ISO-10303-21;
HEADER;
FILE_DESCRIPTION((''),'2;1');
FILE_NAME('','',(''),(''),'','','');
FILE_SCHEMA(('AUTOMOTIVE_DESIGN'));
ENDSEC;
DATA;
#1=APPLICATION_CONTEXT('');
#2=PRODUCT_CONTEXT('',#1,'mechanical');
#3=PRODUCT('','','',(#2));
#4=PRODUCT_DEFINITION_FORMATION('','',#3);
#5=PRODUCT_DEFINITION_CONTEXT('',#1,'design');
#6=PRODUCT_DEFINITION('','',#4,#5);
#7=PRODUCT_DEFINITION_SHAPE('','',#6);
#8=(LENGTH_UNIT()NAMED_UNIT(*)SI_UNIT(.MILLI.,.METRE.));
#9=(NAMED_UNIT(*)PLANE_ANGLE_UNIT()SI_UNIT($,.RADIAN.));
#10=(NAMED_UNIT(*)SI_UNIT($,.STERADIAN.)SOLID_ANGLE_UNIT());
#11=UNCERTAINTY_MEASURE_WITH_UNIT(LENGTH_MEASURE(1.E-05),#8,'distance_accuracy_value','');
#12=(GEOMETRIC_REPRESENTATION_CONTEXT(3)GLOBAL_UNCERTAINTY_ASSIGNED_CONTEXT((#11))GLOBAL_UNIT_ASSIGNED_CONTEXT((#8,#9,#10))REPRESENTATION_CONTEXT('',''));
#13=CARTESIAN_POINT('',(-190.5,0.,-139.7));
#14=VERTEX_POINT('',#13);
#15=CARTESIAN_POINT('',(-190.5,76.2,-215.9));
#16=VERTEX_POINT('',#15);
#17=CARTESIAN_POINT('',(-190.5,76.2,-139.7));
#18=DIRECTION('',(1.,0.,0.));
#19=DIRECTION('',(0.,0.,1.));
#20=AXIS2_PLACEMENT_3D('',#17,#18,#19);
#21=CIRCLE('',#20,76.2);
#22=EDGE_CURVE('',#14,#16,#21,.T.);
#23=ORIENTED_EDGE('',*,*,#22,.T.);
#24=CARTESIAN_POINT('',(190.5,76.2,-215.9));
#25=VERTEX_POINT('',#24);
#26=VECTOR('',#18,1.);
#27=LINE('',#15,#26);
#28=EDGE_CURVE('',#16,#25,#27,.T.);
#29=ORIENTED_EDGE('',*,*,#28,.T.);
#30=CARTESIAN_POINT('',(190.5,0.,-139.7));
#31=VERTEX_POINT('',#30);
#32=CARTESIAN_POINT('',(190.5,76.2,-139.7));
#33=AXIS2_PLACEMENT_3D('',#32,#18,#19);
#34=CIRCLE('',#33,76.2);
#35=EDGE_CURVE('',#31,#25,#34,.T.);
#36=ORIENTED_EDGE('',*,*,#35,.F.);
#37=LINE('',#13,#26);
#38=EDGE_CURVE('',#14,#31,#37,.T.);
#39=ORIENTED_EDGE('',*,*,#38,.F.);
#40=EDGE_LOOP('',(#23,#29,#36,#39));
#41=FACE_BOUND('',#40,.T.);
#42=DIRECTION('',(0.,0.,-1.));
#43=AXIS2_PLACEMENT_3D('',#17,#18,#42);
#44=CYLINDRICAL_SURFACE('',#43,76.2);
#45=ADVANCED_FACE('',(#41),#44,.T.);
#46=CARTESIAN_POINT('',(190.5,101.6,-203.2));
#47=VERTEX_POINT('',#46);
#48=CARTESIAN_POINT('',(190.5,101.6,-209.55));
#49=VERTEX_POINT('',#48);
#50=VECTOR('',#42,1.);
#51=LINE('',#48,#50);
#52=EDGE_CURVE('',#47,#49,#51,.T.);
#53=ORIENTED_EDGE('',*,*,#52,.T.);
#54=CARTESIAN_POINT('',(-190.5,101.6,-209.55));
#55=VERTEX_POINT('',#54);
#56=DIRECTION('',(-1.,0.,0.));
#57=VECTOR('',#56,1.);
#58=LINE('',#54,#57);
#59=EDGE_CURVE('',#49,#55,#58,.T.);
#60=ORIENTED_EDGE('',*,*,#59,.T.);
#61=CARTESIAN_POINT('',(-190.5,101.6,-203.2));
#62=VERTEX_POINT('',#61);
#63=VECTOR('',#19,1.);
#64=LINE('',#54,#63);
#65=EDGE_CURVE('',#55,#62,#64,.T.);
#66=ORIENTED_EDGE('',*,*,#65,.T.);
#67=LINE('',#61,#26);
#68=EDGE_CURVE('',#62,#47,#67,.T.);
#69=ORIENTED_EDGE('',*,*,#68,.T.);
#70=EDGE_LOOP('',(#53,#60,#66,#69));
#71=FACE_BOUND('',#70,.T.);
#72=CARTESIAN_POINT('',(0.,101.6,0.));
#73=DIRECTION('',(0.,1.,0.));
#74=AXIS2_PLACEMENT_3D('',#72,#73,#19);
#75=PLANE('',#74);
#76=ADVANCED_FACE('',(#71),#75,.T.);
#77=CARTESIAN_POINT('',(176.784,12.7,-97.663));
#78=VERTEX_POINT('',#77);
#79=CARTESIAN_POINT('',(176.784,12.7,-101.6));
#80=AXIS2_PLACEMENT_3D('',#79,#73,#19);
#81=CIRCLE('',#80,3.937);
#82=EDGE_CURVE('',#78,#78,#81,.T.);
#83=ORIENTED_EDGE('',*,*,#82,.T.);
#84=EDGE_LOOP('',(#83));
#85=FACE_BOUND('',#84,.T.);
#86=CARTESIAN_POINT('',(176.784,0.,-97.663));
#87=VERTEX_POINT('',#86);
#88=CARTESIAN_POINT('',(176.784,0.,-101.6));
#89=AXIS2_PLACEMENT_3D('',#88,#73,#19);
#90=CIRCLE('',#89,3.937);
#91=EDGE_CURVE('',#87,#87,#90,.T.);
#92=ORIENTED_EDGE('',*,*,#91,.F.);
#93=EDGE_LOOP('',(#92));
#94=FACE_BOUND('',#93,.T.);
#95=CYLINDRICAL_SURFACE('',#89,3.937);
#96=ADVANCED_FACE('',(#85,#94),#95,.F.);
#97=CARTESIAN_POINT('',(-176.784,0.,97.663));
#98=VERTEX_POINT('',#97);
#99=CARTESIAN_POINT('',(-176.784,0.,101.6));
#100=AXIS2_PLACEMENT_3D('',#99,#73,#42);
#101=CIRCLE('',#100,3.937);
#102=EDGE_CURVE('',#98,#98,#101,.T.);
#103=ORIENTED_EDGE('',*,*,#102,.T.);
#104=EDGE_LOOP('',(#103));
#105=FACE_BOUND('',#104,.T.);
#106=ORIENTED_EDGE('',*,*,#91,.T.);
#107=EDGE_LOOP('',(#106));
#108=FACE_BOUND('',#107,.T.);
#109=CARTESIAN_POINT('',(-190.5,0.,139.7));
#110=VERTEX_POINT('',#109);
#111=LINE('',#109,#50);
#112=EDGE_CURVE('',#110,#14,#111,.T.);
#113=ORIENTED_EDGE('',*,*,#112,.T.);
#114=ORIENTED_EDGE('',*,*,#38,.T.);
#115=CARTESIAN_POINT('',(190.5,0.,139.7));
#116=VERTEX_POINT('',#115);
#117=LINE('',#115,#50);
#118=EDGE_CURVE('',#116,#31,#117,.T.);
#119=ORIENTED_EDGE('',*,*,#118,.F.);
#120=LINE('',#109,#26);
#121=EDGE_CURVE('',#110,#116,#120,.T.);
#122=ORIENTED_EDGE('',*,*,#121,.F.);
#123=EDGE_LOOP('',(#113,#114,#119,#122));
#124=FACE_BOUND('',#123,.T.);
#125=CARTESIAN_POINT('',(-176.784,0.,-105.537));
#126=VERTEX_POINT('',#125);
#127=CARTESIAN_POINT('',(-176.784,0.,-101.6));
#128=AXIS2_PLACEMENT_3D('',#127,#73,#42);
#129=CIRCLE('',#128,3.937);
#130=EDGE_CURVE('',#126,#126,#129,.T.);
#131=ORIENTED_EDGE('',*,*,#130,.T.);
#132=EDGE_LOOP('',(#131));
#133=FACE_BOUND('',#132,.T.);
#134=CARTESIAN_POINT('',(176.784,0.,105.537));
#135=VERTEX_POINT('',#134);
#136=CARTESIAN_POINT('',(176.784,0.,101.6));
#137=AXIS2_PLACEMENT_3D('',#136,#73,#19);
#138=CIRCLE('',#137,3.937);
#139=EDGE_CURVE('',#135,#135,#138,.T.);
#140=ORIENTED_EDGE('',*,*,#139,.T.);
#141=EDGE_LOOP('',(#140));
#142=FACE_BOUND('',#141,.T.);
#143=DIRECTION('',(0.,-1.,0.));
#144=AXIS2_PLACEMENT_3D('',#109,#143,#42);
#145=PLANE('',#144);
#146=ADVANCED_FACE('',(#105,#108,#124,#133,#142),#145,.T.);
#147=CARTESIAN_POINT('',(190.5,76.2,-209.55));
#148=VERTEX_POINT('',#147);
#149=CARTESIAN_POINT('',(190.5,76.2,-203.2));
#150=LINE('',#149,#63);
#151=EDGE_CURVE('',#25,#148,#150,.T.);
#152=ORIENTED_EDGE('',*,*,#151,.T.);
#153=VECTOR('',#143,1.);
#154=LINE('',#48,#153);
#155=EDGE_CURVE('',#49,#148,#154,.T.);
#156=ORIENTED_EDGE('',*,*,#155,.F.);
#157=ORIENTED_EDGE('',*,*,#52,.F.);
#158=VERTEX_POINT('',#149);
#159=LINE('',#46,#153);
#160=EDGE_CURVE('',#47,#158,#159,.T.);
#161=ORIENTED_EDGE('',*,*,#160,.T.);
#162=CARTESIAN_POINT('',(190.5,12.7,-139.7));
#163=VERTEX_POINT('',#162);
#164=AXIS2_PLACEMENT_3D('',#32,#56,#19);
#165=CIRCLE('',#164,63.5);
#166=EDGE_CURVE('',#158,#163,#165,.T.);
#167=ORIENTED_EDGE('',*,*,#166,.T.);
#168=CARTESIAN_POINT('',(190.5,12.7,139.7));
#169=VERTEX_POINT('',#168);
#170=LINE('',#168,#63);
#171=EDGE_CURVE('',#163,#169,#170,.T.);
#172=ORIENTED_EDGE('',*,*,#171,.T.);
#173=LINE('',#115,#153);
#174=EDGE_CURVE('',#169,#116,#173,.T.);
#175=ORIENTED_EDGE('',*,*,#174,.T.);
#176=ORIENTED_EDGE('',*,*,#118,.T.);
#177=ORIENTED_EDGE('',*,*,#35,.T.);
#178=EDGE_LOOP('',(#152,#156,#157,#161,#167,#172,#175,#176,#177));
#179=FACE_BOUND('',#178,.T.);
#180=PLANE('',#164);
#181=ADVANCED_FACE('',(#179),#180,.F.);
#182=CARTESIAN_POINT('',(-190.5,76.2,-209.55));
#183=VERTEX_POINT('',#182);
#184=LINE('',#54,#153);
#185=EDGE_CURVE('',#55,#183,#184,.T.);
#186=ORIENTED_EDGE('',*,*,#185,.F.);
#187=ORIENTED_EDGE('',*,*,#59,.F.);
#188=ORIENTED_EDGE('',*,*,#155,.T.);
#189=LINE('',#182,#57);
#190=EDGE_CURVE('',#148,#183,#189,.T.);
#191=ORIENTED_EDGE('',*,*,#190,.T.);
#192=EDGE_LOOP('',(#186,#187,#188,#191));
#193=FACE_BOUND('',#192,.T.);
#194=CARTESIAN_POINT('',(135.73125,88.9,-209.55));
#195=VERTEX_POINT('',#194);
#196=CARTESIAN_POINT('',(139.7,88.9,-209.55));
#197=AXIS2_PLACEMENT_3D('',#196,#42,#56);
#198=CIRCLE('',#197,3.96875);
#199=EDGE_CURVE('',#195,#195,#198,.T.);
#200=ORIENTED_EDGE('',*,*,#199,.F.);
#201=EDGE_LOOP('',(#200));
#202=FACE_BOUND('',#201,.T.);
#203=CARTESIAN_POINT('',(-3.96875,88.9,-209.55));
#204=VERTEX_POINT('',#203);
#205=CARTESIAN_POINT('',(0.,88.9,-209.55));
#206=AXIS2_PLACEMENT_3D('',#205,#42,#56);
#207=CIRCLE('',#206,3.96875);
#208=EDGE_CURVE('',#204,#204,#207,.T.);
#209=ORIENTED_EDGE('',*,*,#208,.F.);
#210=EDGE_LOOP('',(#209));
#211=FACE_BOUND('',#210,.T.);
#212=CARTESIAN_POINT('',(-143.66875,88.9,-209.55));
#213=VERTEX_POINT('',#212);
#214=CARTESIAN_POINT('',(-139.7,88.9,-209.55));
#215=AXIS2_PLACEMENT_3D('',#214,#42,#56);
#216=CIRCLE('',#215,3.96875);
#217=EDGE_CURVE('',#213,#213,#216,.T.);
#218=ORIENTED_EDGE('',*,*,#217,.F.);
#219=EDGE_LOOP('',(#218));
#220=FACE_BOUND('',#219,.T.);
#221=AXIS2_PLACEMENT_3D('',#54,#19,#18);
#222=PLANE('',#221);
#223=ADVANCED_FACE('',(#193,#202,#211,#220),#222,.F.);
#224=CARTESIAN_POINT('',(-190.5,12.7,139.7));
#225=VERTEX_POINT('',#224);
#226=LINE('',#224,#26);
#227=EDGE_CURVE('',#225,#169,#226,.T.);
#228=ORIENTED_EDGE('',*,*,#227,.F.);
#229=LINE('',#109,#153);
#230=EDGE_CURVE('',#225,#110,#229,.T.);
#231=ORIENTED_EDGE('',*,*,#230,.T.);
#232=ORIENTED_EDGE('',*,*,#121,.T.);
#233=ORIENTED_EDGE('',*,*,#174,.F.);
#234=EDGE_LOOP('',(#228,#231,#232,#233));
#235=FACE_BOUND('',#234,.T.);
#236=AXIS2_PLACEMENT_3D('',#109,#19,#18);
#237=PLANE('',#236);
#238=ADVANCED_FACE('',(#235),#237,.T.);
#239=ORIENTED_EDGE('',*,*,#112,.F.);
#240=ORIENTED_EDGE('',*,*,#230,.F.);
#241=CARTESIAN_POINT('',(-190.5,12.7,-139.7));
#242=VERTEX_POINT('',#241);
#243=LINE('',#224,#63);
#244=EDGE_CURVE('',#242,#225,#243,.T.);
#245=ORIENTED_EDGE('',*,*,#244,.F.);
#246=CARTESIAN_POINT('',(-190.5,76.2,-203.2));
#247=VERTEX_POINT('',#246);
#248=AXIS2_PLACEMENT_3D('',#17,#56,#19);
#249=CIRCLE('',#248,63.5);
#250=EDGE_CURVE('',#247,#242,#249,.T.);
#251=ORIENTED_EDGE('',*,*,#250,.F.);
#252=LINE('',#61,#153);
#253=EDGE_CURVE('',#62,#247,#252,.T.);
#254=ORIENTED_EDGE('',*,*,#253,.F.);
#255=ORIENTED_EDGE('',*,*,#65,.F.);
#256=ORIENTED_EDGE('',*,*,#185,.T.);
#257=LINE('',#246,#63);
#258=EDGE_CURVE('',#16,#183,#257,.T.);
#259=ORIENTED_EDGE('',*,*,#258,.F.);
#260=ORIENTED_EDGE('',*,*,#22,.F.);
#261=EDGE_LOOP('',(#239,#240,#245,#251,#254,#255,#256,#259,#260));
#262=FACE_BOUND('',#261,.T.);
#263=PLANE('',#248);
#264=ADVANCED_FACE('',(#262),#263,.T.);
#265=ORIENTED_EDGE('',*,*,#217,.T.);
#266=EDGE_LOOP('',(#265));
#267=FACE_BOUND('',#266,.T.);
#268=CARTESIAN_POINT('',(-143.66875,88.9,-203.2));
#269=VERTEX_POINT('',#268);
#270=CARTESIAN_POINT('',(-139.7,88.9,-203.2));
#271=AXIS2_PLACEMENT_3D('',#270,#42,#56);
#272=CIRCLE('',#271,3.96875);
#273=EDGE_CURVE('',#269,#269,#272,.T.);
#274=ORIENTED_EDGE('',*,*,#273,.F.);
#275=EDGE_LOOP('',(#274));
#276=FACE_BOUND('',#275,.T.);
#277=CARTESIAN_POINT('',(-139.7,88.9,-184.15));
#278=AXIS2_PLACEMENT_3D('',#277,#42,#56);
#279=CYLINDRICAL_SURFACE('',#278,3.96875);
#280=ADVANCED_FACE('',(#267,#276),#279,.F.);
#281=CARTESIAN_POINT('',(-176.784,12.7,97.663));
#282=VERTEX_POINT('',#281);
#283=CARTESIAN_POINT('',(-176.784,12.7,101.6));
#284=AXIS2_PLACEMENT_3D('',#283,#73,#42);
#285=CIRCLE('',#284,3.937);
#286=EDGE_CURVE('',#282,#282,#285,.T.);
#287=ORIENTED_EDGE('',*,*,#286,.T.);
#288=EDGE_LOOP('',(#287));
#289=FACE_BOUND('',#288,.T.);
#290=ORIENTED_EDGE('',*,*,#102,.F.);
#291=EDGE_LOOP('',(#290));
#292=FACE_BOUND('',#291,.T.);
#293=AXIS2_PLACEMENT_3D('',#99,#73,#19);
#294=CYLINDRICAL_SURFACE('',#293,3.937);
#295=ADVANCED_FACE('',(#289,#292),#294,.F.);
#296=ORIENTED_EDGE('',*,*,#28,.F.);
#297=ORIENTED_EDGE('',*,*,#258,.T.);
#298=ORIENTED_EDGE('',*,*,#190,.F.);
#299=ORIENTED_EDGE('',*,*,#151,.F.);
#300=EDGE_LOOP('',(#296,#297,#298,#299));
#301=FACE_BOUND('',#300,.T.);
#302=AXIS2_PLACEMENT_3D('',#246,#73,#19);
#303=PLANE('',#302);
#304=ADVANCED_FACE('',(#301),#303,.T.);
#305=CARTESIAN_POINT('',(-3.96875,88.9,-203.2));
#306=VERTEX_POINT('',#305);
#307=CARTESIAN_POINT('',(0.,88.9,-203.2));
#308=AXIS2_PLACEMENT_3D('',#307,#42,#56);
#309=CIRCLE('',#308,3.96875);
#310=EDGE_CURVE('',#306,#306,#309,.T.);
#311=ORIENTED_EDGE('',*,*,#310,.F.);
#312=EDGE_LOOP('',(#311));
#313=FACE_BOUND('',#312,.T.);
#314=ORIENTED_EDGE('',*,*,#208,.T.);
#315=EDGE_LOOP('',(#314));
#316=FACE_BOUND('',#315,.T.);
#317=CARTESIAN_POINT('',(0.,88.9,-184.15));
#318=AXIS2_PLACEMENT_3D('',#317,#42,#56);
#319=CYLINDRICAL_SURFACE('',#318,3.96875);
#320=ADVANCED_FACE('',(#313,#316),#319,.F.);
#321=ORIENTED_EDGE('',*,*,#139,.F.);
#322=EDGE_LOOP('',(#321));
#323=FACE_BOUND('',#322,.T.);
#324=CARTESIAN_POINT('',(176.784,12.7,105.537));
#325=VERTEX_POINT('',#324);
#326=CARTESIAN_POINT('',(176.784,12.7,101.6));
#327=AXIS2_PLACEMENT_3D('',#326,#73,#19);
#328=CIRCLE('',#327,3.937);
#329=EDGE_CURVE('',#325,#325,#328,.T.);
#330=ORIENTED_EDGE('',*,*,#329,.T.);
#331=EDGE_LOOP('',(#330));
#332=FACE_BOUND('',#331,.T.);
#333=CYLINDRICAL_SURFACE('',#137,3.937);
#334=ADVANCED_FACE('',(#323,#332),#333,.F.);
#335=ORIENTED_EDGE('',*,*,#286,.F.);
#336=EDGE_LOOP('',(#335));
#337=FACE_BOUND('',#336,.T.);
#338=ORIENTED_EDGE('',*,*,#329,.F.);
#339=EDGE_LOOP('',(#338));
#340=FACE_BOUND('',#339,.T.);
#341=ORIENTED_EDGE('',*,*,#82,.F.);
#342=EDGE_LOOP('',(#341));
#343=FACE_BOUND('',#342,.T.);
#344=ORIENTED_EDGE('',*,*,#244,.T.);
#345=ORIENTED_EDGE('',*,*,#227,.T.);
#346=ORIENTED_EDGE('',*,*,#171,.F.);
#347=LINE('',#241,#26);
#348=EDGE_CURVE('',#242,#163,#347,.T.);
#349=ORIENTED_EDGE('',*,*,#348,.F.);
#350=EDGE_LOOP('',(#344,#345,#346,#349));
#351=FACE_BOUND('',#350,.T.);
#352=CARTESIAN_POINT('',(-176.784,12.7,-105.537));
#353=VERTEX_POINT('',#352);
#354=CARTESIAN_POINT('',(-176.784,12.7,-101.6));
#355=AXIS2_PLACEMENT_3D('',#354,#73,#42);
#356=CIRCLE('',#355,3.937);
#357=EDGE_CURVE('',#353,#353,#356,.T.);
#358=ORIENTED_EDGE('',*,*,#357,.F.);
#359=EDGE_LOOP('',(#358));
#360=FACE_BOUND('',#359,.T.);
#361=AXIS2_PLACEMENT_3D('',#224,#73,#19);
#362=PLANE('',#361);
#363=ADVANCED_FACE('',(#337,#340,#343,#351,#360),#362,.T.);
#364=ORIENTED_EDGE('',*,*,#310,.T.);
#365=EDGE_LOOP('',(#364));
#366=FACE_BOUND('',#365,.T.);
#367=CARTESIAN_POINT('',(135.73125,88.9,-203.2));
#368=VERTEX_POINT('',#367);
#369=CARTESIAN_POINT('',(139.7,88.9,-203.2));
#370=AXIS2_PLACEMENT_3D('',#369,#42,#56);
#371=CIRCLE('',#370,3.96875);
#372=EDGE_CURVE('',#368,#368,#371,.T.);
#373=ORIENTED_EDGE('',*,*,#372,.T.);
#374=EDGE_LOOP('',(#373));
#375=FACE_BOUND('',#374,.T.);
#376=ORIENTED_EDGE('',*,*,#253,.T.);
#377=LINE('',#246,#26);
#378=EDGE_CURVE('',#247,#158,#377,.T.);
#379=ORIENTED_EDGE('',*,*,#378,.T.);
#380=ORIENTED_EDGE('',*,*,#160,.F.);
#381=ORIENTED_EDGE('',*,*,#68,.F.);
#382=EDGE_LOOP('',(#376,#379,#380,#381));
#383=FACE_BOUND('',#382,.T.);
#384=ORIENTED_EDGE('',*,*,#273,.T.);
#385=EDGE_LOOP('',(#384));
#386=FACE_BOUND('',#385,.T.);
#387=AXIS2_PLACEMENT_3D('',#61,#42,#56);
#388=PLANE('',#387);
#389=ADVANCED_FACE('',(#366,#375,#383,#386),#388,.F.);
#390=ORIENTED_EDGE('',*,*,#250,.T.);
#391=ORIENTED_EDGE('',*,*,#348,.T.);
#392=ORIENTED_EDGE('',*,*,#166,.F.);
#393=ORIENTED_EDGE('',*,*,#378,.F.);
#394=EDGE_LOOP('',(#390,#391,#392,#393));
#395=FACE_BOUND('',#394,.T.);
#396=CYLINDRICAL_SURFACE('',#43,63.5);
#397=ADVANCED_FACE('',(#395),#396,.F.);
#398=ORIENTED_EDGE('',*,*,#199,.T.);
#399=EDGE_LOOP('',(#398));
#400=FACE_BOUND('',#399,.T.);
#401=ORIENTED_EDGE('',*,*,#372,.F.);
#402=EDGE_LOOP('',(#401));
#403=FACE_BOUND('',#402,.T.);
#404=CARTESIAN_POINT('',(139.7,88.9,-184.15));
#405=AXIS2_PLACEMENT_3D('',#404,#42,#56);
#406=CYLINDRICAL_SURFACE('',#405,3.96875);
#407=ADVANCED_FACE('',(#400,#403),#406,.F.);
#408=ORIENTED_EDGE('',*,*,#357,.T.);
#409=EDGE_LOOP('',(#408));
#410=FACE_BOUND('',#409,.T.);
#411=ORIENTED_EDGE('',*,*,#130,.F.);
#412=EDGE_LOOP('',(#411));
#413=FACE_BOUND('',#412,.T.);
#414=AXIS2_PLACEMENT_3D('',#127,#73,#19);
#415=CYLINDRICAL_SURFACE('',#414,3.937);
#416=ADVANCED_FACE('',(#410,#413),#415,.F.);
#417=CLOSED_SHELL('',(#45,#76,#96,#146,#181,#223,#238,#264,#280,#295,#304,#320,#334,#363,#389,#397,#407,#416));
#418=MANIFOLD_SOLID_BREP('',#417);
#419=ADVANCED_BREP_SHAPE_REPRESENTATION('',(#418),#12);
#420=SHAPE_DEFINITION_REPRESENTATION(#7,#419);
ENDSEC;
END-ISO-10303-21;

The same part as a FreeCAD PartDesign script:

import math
import FreeCAD as App
import Part
import Sketcher
Q = App.Units.Quantity


def add_polygon(sketch, points):
    """Adds a closed chain of lines whose ends are joined by coincident constraints."""
    first, n = sketch.GeometryCount, len(points)
    for a, b in zip(points, points[1:] + points[:1]):
        sketch.addGeometry(Part.LineSegment(App.Vector(*a, 0), App.Vector(*b, 0)), False)
    for i in range(n):
        sketch.addConstraint(Sketcher.Constraint("Coincident", first + i, 2, first + (i + 1) % n, 1))

doc = App.newDocument("Part")
params = doc.addObject("Spreadsheet::Sheet", "Params")
for row, (alias, value) in enumerate([
    ("sketch1_radius", "3 in"),
    ("sketch1_radius2", "2.5 in"),
    ("sketch1_height", "11 in"),
    ("pad1_length", "7.5 in"),
    ("pad1_length2", "7.5 in"),
    ("sketch2_width", "15 in"),
    ("sketch2_height", "0.25 in"),
    ("pad2_length", "1 in"),
    ("sketch3_diameter", "0.3125 in"),
    ("pocket1_length", "1 in"),
    ("sketch4_diameter", "0.31 in"),
], start=1):
    params.set(f"A{row}", alias)
    params.set(f"B{row}", "=" + value)
    params.setAlias(f"B{row}", alias)

body = doc.addObject("PartDesign::Body", "Body")

# Sketch on YZ plane
sketch1 = body.newObject("Sketcher::SketchObject", "Sketch")
sketch1.AttachmentSupport = (doc.getObject("YZ_Plane"), [""])
sketch1.MapMode = "FlatFace"
sketch1.addGeometry(Part.LineSegment(App.Vector(0, 140, 0), App.Vector(0, -140, 0)), False)
sketch1.addGeometry(Part.ArcOfCircle(Part.Circle(App.Vector(76, -140, 0), App.Vector(0, 0, 1), 76), math.radians(-180), math.radians(-90)), False)
sketch1.addGeometry(Part.LineSegment(App.Vector(76, -216, 0), App.Vector(76, -203, 0)), False)
sketch1.addGeometry(Part.ArcOfCircle(Part.Circle(App.Vector(76, -140, 0), App.Vector(0, 0, 1), 64), math.radians(-180), math.radians(-90)), False)
sketch1.addGeometry(Part.LineSegment(App.Vector(13, -140, 0), App.Vector(13, 140, 0)), False)
sketch1.addGeometry(Part.LineSegment(App.Vector(13, 140, 0), App.Vector(0, 140, 0)), False)
sketch1.addConstraint(Sketcher.Constraint("Tangent", 0, 2, 1, 1))
sketch1.addConstraint(Sketcher.Constraint("Coincident", 1, 2, 2, 1))
sketch1.addConstraint(Sketcher.Constraint("Coincident", 2, 2, 3, 2))
sketch1.addConstraint(Sketcher.Constraint("Tangent", 3, 1, 4, 1))
sketch1.addConstraint(Sketcher.Constraint("Coincident", 4, 2, 5, 1))
sketch1.addConstraint(Sketcher.Constraint("Coincident", 5, 2, 0, 1))
sketch1.addConstraint(Sketcher.Constraint("Vertical", 0))
sketch1.addConstraint(Sketcher.Constraint("Vertical", 2))
sketch1.addConstraint(Sketcher.Constraint("Vertical", 4))
sketch1.addConstraint(Sketcher.Constraint("Horizontal", 5))
sketch1.addConstraint(Sketcher.Constraint("Coincident", 3, 3, 1, 3))
sketch1.addConstraint(Sketcher.Constraint("Symmetric", 0, 2, 5, 2, -1, 1))
sketch1.addConstraint(Sketcher.Constraint("Vertical", 3, 3, 1, 2))
sketch1.addConstraint(Sketcher.Constraint("Radius", 1, Q("3 in")))
sketch1.addConstraint(Sketcher.Constraint("Radius", 3, Q("2.5 in")))
sketch1.addConstraint(Sketcher.Constraint("DistanceY", 0, 2, 0, 1, Q("11 in")))
sketch1.setExpression("Constraints[13]", "Params.sketch1_radius")
sketch1.setExpression("Constraints[14]", "Params.sketch1_radius2")
sketch1.setExpression("Constraints[15]", "Params.sketch1_height")
pad1 = body.newObject("PartDesign::Pad", "Pad")
pad1.Profile = sketch1
pad1.Type = "TwoLengths"
pad1.setExpression("Length", "Params.pad1_length")
pad1.setExpression("Length2", "Params.pad1_length2")

# Sketch on XZ plane
sketch2 = body.newObject("Sketcher::SketchObject", "Sketch001")
sketch2.AttachmentSupport = (doc.getObject("XZ_Plane"), [""])
sketch2.MapMode = "FlatFace"
sketch2.AttachmentOffset = App.Placement(App.Vector(0, 0, -3 * 25.4), App.Rotation())
add_polygon(sketch2, [(-190, -210), (-190, -203), (190, -203), (190, -210)])  # lines 0-3
sketch2.addConstraint(Sketcher.Constraint("Vertical", 0))
sketch2.addConstraint(Sketcher.Constraint("Horizontal", 1))
sketch2.addConstraint(Sketcher.Constraint("Vertical", 2))
sketch2.addConstraint(Sketcher.Constraint("Horizontal", 3))
sketch2.addConstraint(Sketcher.Constraint("DistanceX", 1, 1, 1, 2, Q("15 in")))
sketch2.addConstraint(Sketcher.Constraint("DistanceY", 0, 2, -1, 1, Q("8 in")))
sketch2.addConstraint(Sketcher.Constraint("DistanceY", 0, 1, 0, 2, Q("0.25 in")))
sketch2.addConstraint(Sketcher.Constraint("DistanceX", 0, 2, -1, 1, Q("7.5 in")))
sketch2.setExpression("Constraints[8]", "Params.sketch2_width")
sketch2.setExpression("Constraints[10]", "Params.sketch2_height")
pad2 = body.newObject("PartDesign::Pad", "Pad001")
pad2.Profile = sketch2
pad2.setExpression("Length", "Params.pad2_length")
pad2.Reversed = True

# Sketch on XY plane
sketch3 = body.newObject("Sketcher::SketchObject", "Sketch002")
sketch3.AttachmentSupport = (doc.getObject("XY_Plane"), [""])
sketch3.MapMode = "FlatFace"
sketch3.AttachmentOffset = App.Placement(App.Vector(0, 0, -8.25 * 25.4), App.Rotation())
sketch3.addGeometry(Part.Circle(App.Vector(139.7, 88.9, 0), App.Vector(0, 0, 1), 4), False)
sketch3.addGeometry(Part.Circle(App.Vector(-139.7, 88.9, 0), App.Vector(0, 0, 1), 4), False)
sketch3.addGeometry(Part.Circle(App.Vector(0, 88.9, 0), App.Vector(0, 0, 1), 4), False)
sketch3.addConstraint(Sketcher.Constraint("Equal", 0, 1))
sketch3.addConstraint(Sketcher.Constraint("Equal", 1, 2))
sketch3.addConstraint(Sketcher.Constraint("Symmetric", 0, 3, 1, 3, -2))
sketch3.addConstraint(Sketcher.Constraint("PointOnObject", 2, 3, -2))
sketch3.addConstraint(Sketcher.Constraint("Horizontal", 1, 3, 2, 3))
sketch3.addConstraint(Sketcher.Constraint("Diameter", 0, Q("0.3125 in")))
sketch3.addConstraint(Sketcher.Constraint("DistanceX", 1, 3, 0, 3, Q("11 in")))
sketch3.addConstraint(Sketcher.Constraint("DistanceY", -1, 1, 0, 3, Q("3.5 in")))
sketch3.setExpression("Constraints[5]", "Params.sketch3_diameter")
pocket1 = body.newObject("PartDesign::Pocket", "Pocket")
pocket1.Profile = sketch3
pocket1.setExpression("Length", "Params.pocket1_length")
pocket1.Reversed = True

# Sketch on XZ plane
sketch4 = body.newObject("Sketcher::SketchObject", "Sketch003")
sketch4.AttachmentSupport = (doc.getObject("XZ_Plane"), [""])
sketch4.MapMode = "FlatFace"
sketch4.AttachmentOffset = App.Placement(App.Vector(0, 0, -0.5 * 25.4), App.Rotation())
sketch4.addGeometry(Part.Circle(App.Vector(176.8, 101.6, 0), App.Vector(0, 0, 1), 3.9), False)
sketch4.addGeometry(Part.Circle(App.Vector(176.8, -101.6, 0), App.Vector(0, 0, 1), 3.9), False)
sketch4.addGeometry(Part.Circle(App.Vector(-176.8, 101.6, 0), App.Vector(0, 0, 1), 3.9), False)
sketch4.addGeometry(Part.Circle(App.Vector(-176.8, -101.6, 0), App.Vector(0, 0, 1), 3.9), False)
sketch4.addConstraint(Sketcher.Constraint("Equal", 0, 1))
sketch4.addConstraint(Sketcher.Constraint("Equal", 1, 2))
sketch4.addConstraint(Sketcher.Constraint("Equal", 2, 3))
sketch4.addConstraint(Sketcher.Constraint("Symmetric", 1, 3, 2, 3, -1, 1))
sketch4.addConstraint(Sketcher.Constraint("Symmetric", 0, 3, 3, 3, -1, 1))
sketch4.addConstraint(Sketcher.Constraint("Symmetric", 0, 3, 2, 3, -2))
sketch4.addConstraint(Sketcher.Constraint("Diameter", 0, Q("0.31 in")))
sketch4.addConstraint(Sketcher.Constraint("DistanceY", -1, 1, 0, 3, Q("4 in")))
sketch4.addConstraint(Sketcher.Constraint("DistanceX", -1, 1, 0, 3, Q("6.96 in")))
sketch4.setExpression("Constraints[6]", "Params.sketch4_diameter")
pocket2 = body.newObject("PartDesign::Pocket", "Pocket001")
pocket2.Profile = sketch4
pocket2.Type = "ThroughAll"
pocket2.Reversed = True

doc.recompute()
